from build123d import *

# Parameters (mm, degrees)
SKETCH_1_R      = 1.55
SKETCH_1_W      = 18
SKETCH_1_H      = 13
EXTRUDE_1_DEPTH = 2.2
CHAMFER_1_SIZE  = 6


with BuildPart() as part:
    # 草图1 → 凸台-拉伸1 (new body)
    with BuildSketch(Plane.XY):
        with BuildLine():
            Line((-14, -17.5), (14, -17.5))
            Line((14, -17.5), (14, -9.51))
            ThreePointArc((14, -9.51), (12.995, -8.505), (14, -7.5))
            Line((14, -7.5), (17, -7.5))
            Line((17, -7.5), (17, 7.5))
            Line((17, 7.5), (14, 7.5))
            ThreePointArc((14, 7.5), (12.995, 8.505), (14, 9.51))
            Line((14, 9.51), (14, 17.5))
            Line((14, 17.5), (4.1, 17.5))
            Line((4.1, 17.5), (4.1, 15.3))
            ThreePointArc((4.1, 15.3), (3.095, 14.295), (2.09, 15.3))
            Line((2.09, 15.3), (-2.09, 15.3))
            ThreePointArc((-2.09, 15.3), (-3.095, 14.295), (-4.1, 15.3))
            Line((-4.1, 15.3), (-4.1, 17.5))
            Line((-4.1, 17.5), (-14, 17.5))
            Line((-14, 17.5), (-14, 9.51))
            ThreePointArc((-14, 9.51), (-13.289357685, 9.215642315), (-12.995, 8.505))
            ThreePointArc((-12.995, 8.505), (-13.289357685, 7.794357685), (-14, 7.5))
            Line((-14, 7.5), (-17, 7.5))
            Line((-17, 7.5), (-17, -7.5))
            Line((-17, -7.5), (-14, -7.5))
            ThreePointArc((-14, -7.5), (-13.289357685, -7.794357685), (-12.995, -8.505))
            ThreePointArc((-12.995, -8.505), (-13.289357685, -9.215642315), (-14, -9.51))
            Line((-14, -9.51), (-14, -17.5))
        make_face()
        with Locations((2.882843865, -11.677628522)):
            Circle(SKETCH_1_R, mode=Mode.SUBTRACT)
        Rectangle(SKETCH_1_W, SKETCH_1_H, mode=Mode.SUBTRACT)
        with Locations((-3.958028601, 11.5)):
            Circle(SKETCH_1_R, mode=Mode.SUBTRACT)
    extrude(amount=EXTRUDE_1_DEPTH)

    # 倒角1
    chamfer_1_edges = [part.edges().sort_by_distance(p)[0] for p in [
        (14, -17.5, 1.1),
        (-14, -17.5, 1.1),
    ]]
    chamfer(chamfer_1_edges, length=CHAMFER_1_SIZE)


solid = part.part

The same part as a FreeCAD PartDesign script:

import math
import FreeCAD as App
import Part
import Sketcher
from FreeCAD import Vector


def edges_at(feature, points):
    """Names of the edges that pass closest to the given points."""
    edges = feature.Shape.Edges
    near = lambda p: min(range(len(edges)), key=lambda i: edges[i].distToShape(Part.Vertex(*p))[0])
    return sorted({f"Edge{near(p) + 1}" for p in points})


def add_polygon(sketch, points):
    """Adds a closed chain of lines whose ends are joined by coincident constraints."""
    first, n = sketch.GeometryCount, len(points)
    for a, b in zip(points, points[1:] + points[:1]):
        sketch.addGeometry(Part.LineSegment(App.Vector(*a, 0), App.Vector(*b, 0)), False)
    for i in range(n):
        sketch.addConstraint(Sketcher.Constraint("Coincident", first + i, 2, first + (i + 1) % n, 1))

doc = App.newDocument("Part")
body = doc.addObject("PartDesign::Body", "Body")

sketch1 = doc.addObject("Sketcher::SketchObject", "Sketch")
body.addObject(sketch1)
sketch1.AttachmentSupport = (doc.XY_Plane, [""])
sketch1.MapMode = "FlatFace"
sketch1.addGeometry(Part.LineSegment(Vector(-14, -17.5, 0), Vector(14, -17.5, 0)), False)
sketch1.addGeometry(Part.LineSegment(Vector(14, -17.5, 0), Vector(14, -9.5, 0)), False)
sketch1.addGeometry(Part.ArcOfCircle(Part.Circle(Vector(14, -8.5, 0), Vector(0, 0, 1), 1), math.radians(90), math.radians(270)), False)
sketch1.addGeometry(Part.LineSegment(Vector(14, -7.5, 0), Vector(17, -7.5, 0)), False)
sketch1.addGeometry(Part.LineSegment(Vector(17, -7.5, 0), Vector(17, 7.5, 0)), False)
sketch1.addGeometry(Part.LineSegment(Vector(17, 7.5, 0), Vector(14, 7.5, 0)), False)
sketch1.addGeometry(Part.ArcOfCircle(Part.Circle(Vector(14, 8.5, 0), Vector(0, 0, 1), 1), math.radians(90), math.radians(270)), False)
sketch1.addGeometry(Part.LineSegment(Vector(14, 9.5, 0), Vector(14, 17.5, 0)), False)
sketch1.addGeometry(Part.LineSegment(Vector(14, 17.5, 0), Vector(4.1, 17.5, 0)), False)
sketch1.addGeometry(Part.LineSegment(Vector(4.1, 17.5, 0), Vector(4.1, 15.3, 0)), False)
sketch1.addGeometry(Part.ArcOfCircle(Part.Circle(Vector(3.1, 15.3, 0), Vector(0, 0, 1), 1), math.radians(180), math.radians(360)), False)
sketch1.addGeometry(Part.LineSegment(Vector(2.1, 15.3, 0), Vector(-2.1, 15.3, 0)), False)
sketch1.addGeometry(Part.ArcOfCircle(Part.Circle(Vector(-3.1, 15.3, 0), Vector(0, 0, 1), 1), math.radians(180), math.radians(360)), False)
sketch1.addGeometry(Part.LineSegment(Vector(-4.1, 15.3, 0), Vector(-4.1, 17.5, 0)), False)
sketch1.addGeometry(Part.LineSegment(Vector(-4.1, 17.5, 0), Vector(-14, 17.5, 0)), False)
sketch1.addGeometry(Part.LineSegment(Vector(-14, 17.5, 0), Vector(-14, 9.5, 0)), False)
sketch1.addGeometry(Part.ArcOfCircle(Part.Circle(Vector(-14, 8.5, 0), Vector(0, 0, 1), 1), math.radians(0), math.radians(90)), False)
sketch1.addGeometry(Part.ArcOfCircle(Part.Circle(Vector(-14, 8.5, 0), Vector(0, 0, 1), 1), math.radians(-90), math.radians(0)), False)
sketch1.addGeometry(Part.LineSegment(Vector(-14, 7.5, 0), Vector(-17, 7.5, 0)), False)
sketch1.addGeometry(Part.LineSegment(Vector(-17, 7.5, 0), Vector(-17, -7.5, 0)), False)
sketch1.addGeometry(Part.LineSegment(Vector(-17, -7.5, 0), Vector(-14, -7.5, 0)), False)
sketch1.addGeometry(Part.ArcOfCircle(Part.Circle(Vector(-14, -8.5, 0), Vector(0, 0, 1), 1), math.radians(0), math.radians(90)), False)
sketch1.addGeometry(Part.ArcOfCircle(Part.Circle(Vector(-14, -8.5, 0), Vector(0, 0, 1), 1), math.radians(-90), math.radians(0)), False)
sketch1.addGeometry(Part.LineSegment(Vector(-14, -9.5, 0), Vector(-14, -17.5, 0)), False)
sketch1.addGeometry(Part.Circle(Vector(2.9, -11.7, 0), Vector(0, 0, 1), 1.6), False)
sketch1.addGeometry(Part.Circle(Vector(-4, 11.5, 0), Vector(0, 0, 1), 1.6), False)
add_polygon(sketch1, [(9, -6.5), (-9, -6.5), (-9, 6.5), (9, 6.5)])
sketch1.addConstraint(Sketcher.Constraint("Coincident", 0, 2, 1, 1))
sketch1.addConstraint(Sketcher.Constraint("Coincident", 1, 2, 2, 2))
sketch1.addConstraint(Sketcher.Constraint("Tangent", 2, 1, 3, 1))
sketch1.addConstraint(Sketcher.Constraint("Coincident", 3, 2, 4, 1))
sketch1.addConstraint(Sketcher.Constraint("Coincident", 4, 2, 5, 1))
sketch1.addConstraint(Sketcher.Constraint("Tangent", 5, 2, 6, 2))
sketch1.addConstraint(Sketcher.Constraint("Coincident", 6, 1, 7, 1))
sketch1.addConstraint(Sketcher.Constraint("Coincident", 7, 2, 8, 1))
sketch1.addConstraint(Sketcher.Constraint("Coincident", 8, 2, 9, 1))
sketch1.addConstraint(Sketcher.Constraint("Tangent", 9, 2, 10, 2))
sketch1.addConstraint(Sketcher.Constraint("Coincident", 10, 1, 11, 1))
sketch1.addConstraint(Sketcher.Constraint("Coincident", 11, 2, 12, 2))
sketch1.addConstraint(Sketcher.Constraint("Tangent", 12, 1, 13, 1))
sketch1.addConstraint(Sketcher.Constraint("Coincident", 13, 2, 14, 1))
sketch1.addConstraint(Sketcher.Constraint("Coincident", 14, 2, 15, 1))
sketch1.addConstraint(Sketcher.Constraint("Coincident", 15, 2, 16, 2))
sketch1.addConstraint(Sketcher.Constraint("Tangent", 16, 1, 17, 2))
sketch1.addConstraint(Sketcher.Constraint("Tangent", 17, 1, 18, 1))
sketch1.addConstraint(Sketcher.Constraint("Coincident", 18, 2, 19, 1))
sketch1.addConstraint(Sketcher.Constraint("Coincident", 19, 2, 20, 1))
sketch1.addConstraint(Sketcher.Constraint("Tangent", 20, 2, 21, 2))
sketch1.addConstraint(Sketcher.Constraint("Tangent", 21, 1, 22, 2))
sketch1.addConstraint(Sketcher.Constraint("Coincident", 22, 1, 23, 1))
sketch1.addConstraint(Sketcher.Constraint("Coincident", 23, 2, 0, 1))
sketch1.addConstraint(Sketcher.Constraint("Horizontal", 0))
sketch1.addConstraint(Sketcher.Constraint("Vertical", 1))
sketch1.addConstraint(Sketcher.Constraint("Horizontal", 3))
sketch1.addConstraint(Sketcher.Constraint("Vertical", 4))
sketch1.addConstraint(Sketcher.Constraint("Horizontal", 5))
sketch1.addConstraint(Sketcher.Constraint("Vertical", 7))
sketch1.addConstraint(Sketcher.Constraint("Horizontal", 8))
sketch1.addConstraint(Sketcher.Constraint("Vertical", 9))
sketch1.addConstraint(Sketcher.Constraint("Horizontal", 11))
sketch1.addConstraint(Sketcher.Constraint("Vertical", 13))
sketch1.addConstraint(Sketcher.Constraint("Horizontal", 14))
sketch1.addConstraint(Sketcher.Constraint("Vertical", 15))
sketch1.addConstraint(Sketcher.Constraint("Horizontal", 18))
sketch1.addConstraint(Sketcher.Constraint("Vertical", 19))
sketch1.addConstraint(Sketcher.Constraint("Horizontal", 20))
sketch1.addConstraint(Sketcher.Constraint("Vertical", 23))
sketch1.addConstraint(Sketcher.Constraint("Horizontal", 26))
sketch1.addConstraint(Sketcher.Constraint("Vertical", 27))
sketch1.addConstraint(Sketcher.Constraint("Horizontal", 28))
sketch1.addConstraint(Sketcher.Constraint("Vertical", 29))
sketch1.addConstraint(Sketcher.Constraint("Equal", 2, 6))
sketch1.addConstraint(Sketcher.Constraint("Equal", 6, 10))
sketch1.addConstraint(Sketcher.Constraint("Equal", 10, 12))
sketch1.addConstraint(Sketcher.Constraint("Equal", 12, 16))
sketch1.addConstraint(Sketcher.Constraint("Equal", 16, 17))
sketch1.addConstraint(Sketcher.Constraint("Equal", 17, 21))
sketch1.addConstraint(Sketcher.Constraint("Equal", 21, 22))
sketch1.addConstraint(Sketcher.Constraint("Equal", 24, 25))
sketch1.addConstraint(Sketcher.Constraint("Symmetric", 2, 3, 16, 3, -1, 1))
sketch1.addConstraint(Sketcher.Constraint("Symmetric", 6, 3, 21, 3, -1, 1))
sketch1.addConstraint(Sketcher.Constraint("Symmetric", 0, 2, 14, 2, -1, 1))
sketch1.addConstraint(Sketcher.Constraint("Symmetric", 7, 2, 23, 2, -1, 1))
sketch1.addConstraint(Sketcher.Constraint("Symmetric", 26, 2, 28, 2, -1, 1))
sketch1.addConstraint(Sketcher.Constraint("Symmetric", 10, 3, 12, 3, -2))
sketch1.addConstraint(Sketcher.Constraint("Symmetric", 6, 3, 16, 3, -2))
sketch1.addConstraint(Sketcher.Constraint("Horizontal", 9, 2, 10, 1))
sketch1.addConstraint(Sketcher.Constraint("Horizontal", 17, 3, 16, 1))
sketch1.addConstraint(Sketcher.Constraint("Horizontal", 22, 3, 21, 1))
sketch1.addConstraint(Sketcher.Constraint("Vertical", 6, 3, 0, 2))
sketch1.addConstraint(Sketcher.Constraint("Vertical", 5, 2, 6, 1))
sketch1.addConstraint(Sketcher.Constraint("Equal", 5, 18))
sketch1.addConstraint(Sketcher.Constraint("Diameter", 24, 3.1))
sketch1.addConstraint(Sketcher.Constraint("DistanceX", 0, 1, 0, 2, 28.0))
sketch1.addConstraint(Sketcher.Constraint("DistanceX", 3, 1, 3, 2, 3.0))
sketch1.addConstraint(Sketcher.Constraint("DistanceX", 26, 2, 26, 1, 18.0))
sketch1.addConstraint(Sketcher.Constraint("DistanceY", 4, 1, 4, 2, 15.0))
sketch1.addConstraint(Sketcher.Constraint("DistanceY", 27, 1, 27, 2, 13.0))
sketch1.addConstraint(Sketcher.Constraint("DistanceX", 8, 2, 8, 1, 9.9))
sketch1.addConstraint(Sketcher.Constraint("DistanceY", 9, 2, 9, 1, 2.2))
sketch1.addConstraint(Sketcher.Constraint("Radius", 2, 1.005))
sketch1.addConstraint(Sketcher.Constraint("DistanceY", 0, 2, 2, 1, 10.0))
sketch1.addConstraint(Sketcher.Constraint("DistanceY", 25, 3, 8, 2, 6.0))
sketch1.addConstraint(Sketcher.Constraint("DistanceY", 24, 3, -1, 1, 11.677629))
sketch1.addConstraint(Sketcher.Constraint("DistanceX", 25, 3, -1, 1, 3.958029))
sketch1.addConstraint(Sketcher.Constraint("DistanceX", -1, 1, 24, 3, 2.882844))
pad1 = doc.addObject("PartDesign::Pad", "Pad")
body.addObject(pad1)
pad1.Profile = sketch1
pad1.Length = 2.2
doc.recompute()

chamfer = doc.addObject("PartDesign::Chamfer", "Chamfer")
body.addObject(chamfer)
chamfer.Base = (pad1, edges_at(pad1, [(14, -17.5, 1.1), (-14, -17.5, 1.1)]))
chamfer.Size = 6

doc.recompute()
